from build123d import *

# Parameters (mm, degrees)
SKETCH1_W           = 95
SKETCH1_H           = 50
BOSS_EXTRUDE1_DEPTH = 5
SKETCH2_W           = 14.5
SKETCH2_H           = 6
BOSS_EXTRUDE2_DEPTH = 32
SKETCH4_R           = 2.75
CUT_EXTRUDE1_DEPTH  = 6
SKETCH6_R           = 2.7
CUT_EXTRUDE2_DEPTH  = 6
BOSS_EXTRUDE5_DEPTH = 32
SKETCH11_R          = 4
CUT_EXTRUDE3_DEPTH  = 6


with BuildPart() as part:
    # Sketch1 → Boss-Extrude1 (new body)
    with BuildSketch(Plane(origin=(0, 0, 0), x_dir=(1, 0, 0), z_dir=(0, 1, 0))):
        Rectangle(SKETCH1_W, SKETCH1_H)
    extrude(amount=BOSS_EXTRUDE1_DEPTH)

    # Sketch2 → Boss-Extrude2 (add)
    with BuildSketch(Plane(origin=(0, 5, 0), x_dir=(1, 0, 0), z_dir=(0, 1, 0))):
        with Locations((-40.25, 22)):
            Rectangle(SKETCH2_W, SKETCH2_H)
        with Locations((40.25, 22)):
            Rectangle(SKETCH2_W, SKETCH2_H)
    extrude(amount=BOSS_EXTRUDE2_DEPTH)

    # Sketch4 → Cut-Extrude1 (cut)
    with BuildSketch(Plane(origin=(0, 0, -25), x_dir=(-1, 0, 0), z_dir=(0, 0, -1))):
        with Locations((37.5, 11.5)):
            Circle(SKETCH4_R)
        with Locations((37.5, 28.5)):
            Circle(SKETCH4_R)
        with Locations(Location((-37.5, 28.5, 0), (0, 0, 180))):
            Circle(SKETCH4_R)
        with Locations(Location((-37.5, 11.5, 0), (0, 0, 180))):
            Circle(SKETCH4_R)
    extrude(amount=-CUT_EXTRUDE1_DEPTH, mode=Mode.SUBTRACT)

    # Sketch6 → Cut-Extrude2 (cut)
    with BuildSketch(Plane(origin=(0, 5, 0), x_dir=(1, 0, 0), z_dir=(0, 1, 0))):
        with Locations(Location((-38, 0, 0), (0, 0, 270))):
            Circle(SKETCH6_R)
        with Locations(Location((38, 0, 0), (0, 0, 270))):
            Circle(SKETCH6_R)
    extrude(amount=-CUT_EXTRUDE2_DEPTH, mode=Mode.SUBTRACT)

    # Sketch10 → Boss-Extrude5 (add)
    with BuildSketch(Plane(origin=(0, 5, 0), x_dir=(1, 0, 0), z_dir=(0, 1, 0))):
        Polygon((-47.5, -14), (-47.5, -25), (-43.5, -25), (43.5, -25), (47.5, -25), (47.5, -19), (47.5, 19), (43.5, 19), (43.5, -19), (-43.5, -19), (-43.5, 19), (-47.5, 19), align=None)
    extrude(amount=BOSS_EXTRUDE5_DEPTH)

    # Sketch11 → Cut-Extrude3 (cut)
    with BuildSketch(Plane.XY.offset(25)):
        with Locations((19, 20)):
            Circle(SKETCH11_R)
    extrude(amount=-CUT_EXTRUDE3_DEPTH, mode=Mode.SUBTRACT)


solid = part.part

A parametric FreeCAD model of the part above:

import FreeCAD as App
import Part
import Sketcher

V = App.Vector
Q = App.Units.Quantity


def add_polygon(sketch, points):
    """Adds a closed chain of lines whose ends are joined by coincident constraints."""
    first, n = sketch.GeometryCount, len(points)
    for a, b in zip(points, points[1:] + points[:1]):
        sketch.addGeometry(Part.LineSegment(App.Vector(*a, 0), App.Vector(*b, 0)), False)
    for i in range(n):
        sketch.addConstraint(Sketcher.Constraint("Coincident", first + i, 2, first + (i + 1) % n, 1))

doc = App.newDocument("Part")
params = doc.addObject("Spreadsheet::Sheet", "Params")
for row, (alias, value) in enumerate([
    ("sketch1_width", "95 mm"),
    ("sketch1_height", "50 mm"),
    ("pad1_length", "5 mm"),
    ("sketch2_height", "6 mm"),
    ("sketch2_width", "14.5 mm"),
    ("pad2_length", "32 mm"),
    ("sketch3_diameter", "5.5 mm"),
    ("pocket1_length", "6 mm"),
    ("sketch4_diameter", "5.4 mm"),
    ("pocket2_length", "6 mm"),
    ("sketch5_width", "95 mm"),
    ("sketch5_width2", "4 mm"),
    ("sketch5_height", "44 mm"),
    ("sketch5_height2", "38 mm"),
    ("pad3_length", "32 mm"),
    ("sketch6_diameter", "8 mm"),
    ("pocket3_length", "6 mm"),
], start=1):
    params.set(f"A{row}", alias)
    params.set(f"B{row}", "=" + value)
    params.setAlias(f"B{row}", alias)

body = doc.addObject("PartDesign::Body", "Body")

# Sketch on XZ plane
sketch1 = doc.addObject("Sketcher::SketchObject", "Sketch")
body.addObject(sketch1)
sketch1.AttachmentSupport = (doc.XZ_Plane, [""])
sketch1.MapMode = "FlatFace"
add_polygon(sketch1, [(-48, -25), (-48, 25), (48, 25), (48, -25)])  # lines 0-3
sketch1.addConstraint([
    Sketcher.Constraint("Vertical", 0),
    Sketcher.Constraint("Horizontal", 1),
    Sketcher.Constraint("Vertical", 2),
    Sketcher.Constraint("Horizontal", 3),
    Sketcher.Constraint("Symmetric", 0, 2, 2, 2, -1, 1),
    Sketcher.Constraint("DistanceX", 1, 1, 1, 2, Q("95 mm")),
    Sketcher.Constraint("DistanceY", 0, 1, 0, 2, Q("50 mm")),
])
sketch1.setExpression("Constraints[9]", "Params.sketch1_width")
sketch1.setExpression("Constraints[10]", "Params.sketch1_height")
pad1 = doc.addObject("PartDesign::Pad", "Pad")
body.addObject(pad1)
pad1.Profile = sketch1
pad1.setExpression("Length", "Params.pad1_length")
pad1.Reversed = True

# Sketch on XZ plane
sketch2 = doc.addObject("Sketcher::SketchObject", "Sketch001")
body.addObject(sketch2)
sketch2.AttachmentSupport = (doc.XZ_Plane, [""])
sketch2.MapMode = "FlatFace"
sketch2.AttachmentOffset = App.Placement(V(0, 0, -5), App.Rotation())
add_polygon(sketch2, [(-48, -25), (-48, -19), (-33, -19), (-33, -25)])  # lines 0-3
add_polygon(sketch2, [(33, -25), (33, -19), (48, -19), (48, -25)])  # lines 4-7
sketch2.addConstraint([
    Sketcher.Constraint("Vertical", 0),
    Sketcher.Constraint("Horizontal", 1),
    Sketcher.Constraint("Vertical", 2),
    Sketcher.Constraint("Horizontal", 3),
    Sketcher.Constraint("Vertical", 4),
    Sketcher.Constraint("Horizontal", 5),
    Sketcher.Constraint("Vertical", 6),
    Sketcher.Constraint("Horizontal", 7),
    Sketcher.Constraint("Symmetric", 1, 2, 4, 2, -2),
    Sketcher.Constraint("Symmetric", 3, 2, 6, 2, -2),
    Sketcher.Constraint("DistanceY", 0, 1, 0, 2, Q("6 mm")),
    Sketcher.Constraint("DistanceX", 1, 1, 1, 2, Q("14.5 mm")),
    Sketcher.Constraint("DistanceY", 0, 2, -1, 1, Q("19 mm")),
    Sketcher.Constraint("DistanceX", 1, 2, -1, 1, Q("33 mm")),
])
sketch2.setExpression("Constraints[18]", "Params.sketch2_height")
sketch2.setExpression("Constraints[19]", "Params.sketch2_width")
pad2 = doc.addObject("PartDesign::Pad", "Pad001")
body.addObject(pad2)
pad2.Profile = sketch2
pad2.setExpression("Length", "Params.pad2_length")
pad2.Reversed = True

# Sketch on XY plane
sketch3 = doc.addObject("Sketcher::SketchObject", "Sketch002")
body.addObject(sketch3)
sketch3.AttachmentSupport = (doc.XY_Plane, [""])
sketch3.MapMode = "FlatFace"
sketch3.AttachmentOffset = App.Placement(V(0, 0, -25), App.Rotation())
sketch3.addGeometry([
    Part.Circle(V(-37.5, 11.5, 0), V(0, 0, 1), 2.8),
    Part.Circle(V(-37.5, 28.5, 0), V(0, 0, 1), 2.8),
    Part.Circle(V(37.5, 28.5, 0), V(0, 0, 1), 2.8),
    Part.Circle(V(37.5, 11.5, 0), V(0, 0, 1), 2.8),
], False)
sketch3.addConstraint([
    Sketcher.Constraint("Equal", 0, 1),
    Sketcher.Constraint("Equal", 1, 2),
    Sketcher.Constraint("Equal", 2, 3),
    Sketcher.Constraint("Symmetric", 1, 3, 2, 3, -2),
    Sketcher.Constraint("Symmetric", 0, 3, 3, 3, -2),
    Sketcher.Constraint("Vertical", 0, 3, 1, 3),
    Sketcher.Constraint("Diameter", 0, Q("5.5 mm")),
    Sketcher.Constraint("DistanceY", 0, 3, 1, 3, Q("17 mm")),
    Sketcher.Constraint("DistanceX", 1, 3, 2, 3, Q("75 mm")),
    Sketcher.Constraint("DistanceY", -1, 1, 0, 3, Q("11.5 mm")),
])
sketch3.setExpression("Constraints[6]", "Params.sketch3_diameter")
pocket1 = doc.addObject("PartDesign::Pocket", "Pocket")
body.addObject(pocket1)
pocket1.Profile = sketch3
pocket1.setExpression("Length", "Params.pocket1_length")
pocket1.Reversed = True

# Sketch on XZ plane
sketch4 = doc.addObject("Sketcher::SketchObject", "Sketch003")
body.addObject(sketch4)
sketch4.AttachmentSupport = (doc.XZ_Plane, [""])
sketch4.MapMode = "FlatFace"
sketch4.AttachmentOffset = App.Placement(V(0, 0, -5), App.Rotation())
sketch4.addGeometry([
    Part.Circle(V(-38, 0, 0), V(0, 0, 1), 2.7),
    Part.Circle(V(38, 0, 0), V(0, 0, 1), 2.7),
], False)
sketch4.addConstraint([
    Sketcher.Constraint("Equal", 0, 1),
    Sketcher.Constraint("Symmetric", 0, 3, 1, 3, -1, 1),
    Sketcher.Constraint("PointOnObject", 0, 3, -1),
    Sketcher.Constraint("Diameter", 0, Q("5.4 mm")),
    Sketcher.Constraint("DistanceX", 0, 3, -1, 1, Q("38 mm")),
])
sketch4.setExpression("Constraints[3]", "Params.sketch4_diameter")
pocket2 = doc.addObject("PartDesign::Pocket", "Pocket001")
body.addObject(pocket2)
pocket2.Profile = sketch4
pocket2.setExpression("Length", "Params.pocket2_length")
pocket2.Reversed = True

# Sketch on XZ plane
sketch5 = doc.addObject("Sketcher::SketchObject", "Sketch004")
body.addObject(sketch5)
sketch5.AttachmentSupport = (doc.XZ_Plane, [""])
sketch5.MapMode = "FlatFace"
sketch5.AttachmentOffset = App.Placement(V(0, 0, -5), App.Rotation())
add_polygon(sketch5, [(-47.5, 25), (47.5, 25), (47.5, -19), (43.5, -19), (43.5, 19), (-43.5, 19), (-43.5, -19), (-47.5, -19)])  # lines 0-7
sketch5.addConstraint([
    Sketcher.Constraint("Horizontal", 0),
    Sketcher.Constraint("Vertical", 1),
    Sketcher.Constraint("Horizontal", 2),
    Sketcher.Constraint("Vertical", 3),
    Sketcher.Constraint("Horizontal", 4),
    Sketcher.Constraint("Vertical", 5),
    Sketcher.Constraint("Horizontal", 6),
    Sketcher.Constraint("Vertical", 7),
    Sketcher.Constraint("Symmetric", 2, 2, 4, 2, -1, 1),
    Sketcher.Constraint("Symmetric", 1, 2, 6, 2, -2),
    Sketcher.Constraint("DistanceX", 0, 1, 0, 2, Q("95 mm")),
    Sketcher.Constraint("DistanceX", 2, 2, 2, 1, Q("4 mm")),
    Sketcher.Constraint("DistanceY", 1, 2, 1, 1, Q("44 mm")),
    Sketcher.Constraint("DistanceY", 3, 1, 3, 2, Q("38 mm")),
])
sketch5.setExpression("Constraints[18]", "Params.sketch5_width")
sketch5.setExpression("Constraints[19]", "Params.sketch5_width2")
sketch5.setExpression("Constraints[20]", "Params.sketch5_height")
sketch5.setExpression("Constraints[21]", "Params.sketch5_height2")
pad3 = doc.addObject("PartDesign::Pad", "Pad002")
body.addObject(pad3)
pad3.Profile = sketch5
pad3.setExpression("Length", "Params.pad3_length")
pad3.Reversed = True

# Sketch on XY plane
sketch6 = doc.addObject("Sketcher::SketchObject", "Sketch005")
body.addObject(sketch6)
sketch6.AttachmentSupport = (doc.XY_Plane, [""])
sketch6.MapMode = "FlatFace"
sketch6.AttachmentOffset = App.Placement(V(0, 0, 25), App.Rotation())
sketch6.addGeometry(Part.Circle(V(19, 20, 0), V(0, 0, 1), 4), False)
sketch6.addConstraint([
    Sketcher.Constraint("Diameter", 0, Q("8 mm")),
    Sketcher.Constraint("DistanceX", -1, 1, 0, 3, Q("19 mm")),
    Sketcher.Constraint("DistanceY", -1, 1, 0, 3, Q("20 mm")),
])
sketch6.setExpression("Constraints[0]", "Params.sketch6_diameter")
pocket3 = doc.addObject("PartDesign::Pocket", "Pocket002")
body.addObject(pocket3)
pocket3.Profile = sketch6
pocket3.setExpression("Length", "Params.pocket3_length")

doc.recompute()
